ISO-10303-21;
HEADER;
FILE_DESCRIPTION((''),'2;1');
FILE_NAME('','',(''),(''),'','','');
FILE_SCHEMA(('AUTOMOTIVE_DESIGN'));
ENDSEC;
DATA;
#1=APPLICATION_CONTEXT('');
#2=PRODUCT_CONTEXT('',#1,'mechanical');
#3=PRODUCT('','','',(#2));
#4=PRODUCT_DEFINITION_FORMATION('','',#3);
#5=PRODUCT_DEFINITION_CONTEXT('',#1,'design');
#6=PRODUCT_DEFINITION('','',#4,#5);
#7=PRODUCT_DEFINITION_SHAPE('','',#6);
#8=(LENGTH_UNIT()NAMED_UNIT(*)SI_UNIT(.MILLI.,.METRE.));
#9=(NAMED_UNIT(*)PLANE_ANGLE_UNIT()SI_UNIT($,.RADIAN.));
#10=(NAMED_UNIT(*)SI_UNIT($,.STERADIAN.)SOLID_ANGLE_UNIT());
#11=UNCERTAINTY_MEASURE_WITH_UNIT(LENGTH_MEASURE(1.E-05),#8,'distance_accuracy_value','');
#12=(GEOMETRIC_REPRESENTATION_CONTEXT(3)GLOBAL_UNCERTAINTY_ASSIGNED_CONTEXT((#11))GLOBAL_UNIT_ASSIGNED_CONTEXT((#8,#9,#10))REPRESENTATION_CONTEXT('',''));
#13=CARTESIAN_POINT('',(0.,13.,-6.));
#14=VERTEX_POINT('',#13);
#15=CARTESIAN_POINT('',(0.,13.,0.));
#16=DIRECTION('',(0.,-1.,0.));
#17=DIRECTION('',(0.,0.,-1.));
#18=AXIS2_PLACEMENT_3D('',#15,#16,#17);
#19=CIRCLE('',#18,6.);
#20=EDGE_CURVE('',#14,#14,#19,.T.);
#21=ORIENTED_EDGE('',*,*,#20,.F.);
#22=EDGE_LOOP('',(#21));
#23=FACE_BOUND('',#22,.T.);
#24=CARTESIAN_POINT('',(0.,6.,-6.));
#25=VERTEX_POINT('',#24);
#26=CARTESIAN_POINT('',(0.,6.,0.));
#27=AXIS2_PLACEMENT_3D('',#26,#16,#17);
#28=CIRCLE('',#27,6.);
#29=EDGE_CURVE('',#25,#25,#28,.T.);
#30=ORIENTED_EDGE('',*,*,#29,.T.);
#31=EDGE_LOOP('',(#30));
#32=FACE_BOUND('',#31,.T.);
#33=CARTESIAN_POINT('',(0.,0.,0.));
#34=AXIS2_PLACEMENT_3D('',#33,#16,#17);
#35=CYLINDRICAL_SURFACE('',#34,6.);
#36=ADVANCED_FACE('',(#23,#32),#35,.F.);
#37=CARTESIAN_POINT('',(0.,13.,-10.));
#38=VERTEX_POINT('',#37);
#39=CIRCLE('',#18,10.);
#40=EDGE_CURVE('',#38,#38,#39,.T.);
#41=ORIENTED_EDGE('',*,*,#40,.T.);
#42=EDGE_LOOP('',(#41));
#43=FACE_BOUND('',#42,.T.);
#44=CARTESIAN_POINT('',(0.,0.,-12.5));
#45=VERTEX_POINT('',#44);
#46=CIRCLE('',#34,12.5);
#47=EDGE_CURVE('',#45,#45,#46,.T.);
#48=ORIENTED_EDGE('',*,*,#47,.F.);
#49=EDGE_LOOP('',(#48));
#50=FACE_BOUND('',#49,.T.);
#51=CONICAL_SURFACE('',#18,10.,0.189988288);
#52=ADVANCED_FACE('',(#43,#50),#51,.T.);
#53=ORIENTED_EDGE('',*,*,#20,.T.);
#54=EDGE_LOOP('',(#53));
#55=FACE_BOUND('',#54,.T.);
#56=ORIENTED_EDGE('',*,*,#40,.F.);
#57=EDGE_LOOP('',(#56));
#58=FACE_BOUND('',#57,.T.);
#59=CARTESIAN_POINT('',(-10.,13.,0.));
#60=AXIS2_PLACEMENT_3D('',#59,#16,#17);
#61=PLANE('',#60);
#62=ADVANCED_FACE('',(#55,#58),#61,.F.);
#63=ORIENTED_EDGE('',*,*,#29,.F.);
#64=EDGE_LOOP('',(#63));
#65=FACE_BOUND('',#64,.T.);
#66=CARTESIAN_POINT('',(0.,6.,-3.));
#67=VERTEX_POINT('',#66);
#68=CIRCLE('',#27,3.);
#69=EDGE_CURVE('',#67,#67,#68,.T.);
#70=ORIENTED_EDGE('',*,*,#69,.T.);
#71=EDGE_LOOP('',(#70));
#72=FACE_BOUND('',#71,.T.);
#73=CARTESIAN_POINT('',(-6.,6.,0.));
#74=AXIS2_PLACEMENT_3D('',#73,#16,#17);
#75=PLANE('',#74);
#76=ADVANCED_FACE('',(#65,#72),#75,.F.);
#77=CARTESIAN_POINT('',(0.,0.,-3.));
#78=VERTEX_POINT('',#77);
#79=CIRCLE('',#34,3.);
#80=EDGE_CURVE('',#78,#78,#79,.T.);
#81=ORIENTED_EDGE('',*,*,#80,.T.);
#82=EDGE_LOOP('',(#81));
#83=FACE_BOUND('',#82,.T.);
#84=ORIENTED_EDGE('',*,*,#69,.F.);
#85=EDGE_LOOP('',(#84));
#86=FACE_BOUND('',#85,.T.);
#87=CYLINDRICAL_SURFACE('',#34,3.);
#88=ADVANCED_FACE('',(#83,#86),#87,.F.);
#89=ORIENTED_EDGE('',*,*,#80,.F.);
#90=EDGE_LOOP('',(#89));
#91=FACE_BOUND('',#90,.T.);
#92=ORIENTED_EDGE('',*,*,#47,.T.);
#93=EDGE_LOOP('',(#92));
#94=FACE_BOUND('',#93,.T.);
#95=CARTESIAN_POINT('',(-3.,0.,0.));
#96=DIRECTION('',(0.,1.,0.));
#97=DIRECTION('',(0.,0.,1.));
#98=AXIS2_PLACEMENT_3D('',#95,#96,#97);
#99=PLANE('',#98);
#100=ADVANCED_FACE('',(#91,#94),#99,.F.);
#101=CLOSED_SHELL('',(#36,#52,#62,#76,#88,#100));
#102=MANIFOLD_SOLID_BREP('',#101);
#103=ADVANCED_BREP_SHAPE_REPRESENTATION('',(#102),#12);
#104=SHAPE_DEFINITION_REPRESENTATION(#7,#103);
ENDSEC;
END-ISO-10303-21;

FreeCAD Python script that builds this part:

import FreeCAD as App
import Part
import Sketcher

V = App.Vector
Q = App.Units.Quantity

doc = App.newDocument("Part")
body = doc.addObject("PartDesign::Body", "Body")

# Sketch on XY plane
sketch1 = doc.addObject("Sketcher::SketchObject", "Sketch")
body.addObject(sketch1)
sketch1.AttachmentSupport = (doc.XY_Plane, [""])
sketch1.MapMode = "FlatFace"
sketch1.addGeometry([
    Part.LineSegment(V(-12.5, 0, 0), V(-3, 0, 0)),  # 0
    Part.LineSegment(V(-3, 0, 0), V(-3, 6, 0)),  # 1
    Part.LineSegment(V(-3, 6, 0), V(-6, 6, 0)),  # 2
    Part.LineSegment(V(-6, 6, 0), V(-6, 13, 0)),  # 3
    Part.LineSegment(V(-6, 13, 0), V(-10, 13, 0)),  # 4
    Part.LineSegment(V(-10, 13, 0), V(-12.5, 0, 0)),  # 5
], False)
sketch1.addConstraint([
    Sketcher.Constraint("Coincident", 0, 2, 1, 1),
    Sketcher.Constraint("Coincident", 1, 2, 2, 1),
    Sketcher.Constraint("Coincident", 2, 2, 3, 1),
    Sketcher.Constraint("Coincident", 3, 2, 4, 1),
    Sketcher.Constraint("Coincident", 4, 2, 5, 1),
    Sketcher.Constraint("Coincident", 5, 2, 0, 1),
    Sketcher.Constraint("Horizontal", 0),
    Sketcher.Constraint("Vertical", 1),
    Sketcher.Constraint("Horizontal", 2),
    Sketcher.Constraint("Vertical", 3),
    Sketcher.Constraint("Horizontal", 4),
    Sketcher.Constraint("PointOnObject", 0, 2, -1),
    Sketcher.Constraint("DistanceX", 2, 2, 2, 1, Q("3 mm")),
    Sketcher.Constraint("DistanceX", 4, 2, 4, 1, Q("4 mm")),
    Sketcher.Constraint("DistanceY", 1, 1, 1, 2, Q("6 mm")),
    Sketcher.Constraint("DistanceY", 3, 1, 3, 2, Q("7 mm")),
    Sketcher.Constraint("DistanceX", 0, 1, 0, 2, Q("9.5 mm")),
    Sketcher.Constraint("DistanceX", 0, 2, -1, 1, Q("3 mm")),
])
revolution = doc.addObject("PartDesign::Revolution", "Revolution")
body.addObject(revolution)
revolution.Profile = sketch1
revolution.ReferenceAxis = (sketch1, ["V_Axis"])
revolution.Angle = 360

doc.recompute()
